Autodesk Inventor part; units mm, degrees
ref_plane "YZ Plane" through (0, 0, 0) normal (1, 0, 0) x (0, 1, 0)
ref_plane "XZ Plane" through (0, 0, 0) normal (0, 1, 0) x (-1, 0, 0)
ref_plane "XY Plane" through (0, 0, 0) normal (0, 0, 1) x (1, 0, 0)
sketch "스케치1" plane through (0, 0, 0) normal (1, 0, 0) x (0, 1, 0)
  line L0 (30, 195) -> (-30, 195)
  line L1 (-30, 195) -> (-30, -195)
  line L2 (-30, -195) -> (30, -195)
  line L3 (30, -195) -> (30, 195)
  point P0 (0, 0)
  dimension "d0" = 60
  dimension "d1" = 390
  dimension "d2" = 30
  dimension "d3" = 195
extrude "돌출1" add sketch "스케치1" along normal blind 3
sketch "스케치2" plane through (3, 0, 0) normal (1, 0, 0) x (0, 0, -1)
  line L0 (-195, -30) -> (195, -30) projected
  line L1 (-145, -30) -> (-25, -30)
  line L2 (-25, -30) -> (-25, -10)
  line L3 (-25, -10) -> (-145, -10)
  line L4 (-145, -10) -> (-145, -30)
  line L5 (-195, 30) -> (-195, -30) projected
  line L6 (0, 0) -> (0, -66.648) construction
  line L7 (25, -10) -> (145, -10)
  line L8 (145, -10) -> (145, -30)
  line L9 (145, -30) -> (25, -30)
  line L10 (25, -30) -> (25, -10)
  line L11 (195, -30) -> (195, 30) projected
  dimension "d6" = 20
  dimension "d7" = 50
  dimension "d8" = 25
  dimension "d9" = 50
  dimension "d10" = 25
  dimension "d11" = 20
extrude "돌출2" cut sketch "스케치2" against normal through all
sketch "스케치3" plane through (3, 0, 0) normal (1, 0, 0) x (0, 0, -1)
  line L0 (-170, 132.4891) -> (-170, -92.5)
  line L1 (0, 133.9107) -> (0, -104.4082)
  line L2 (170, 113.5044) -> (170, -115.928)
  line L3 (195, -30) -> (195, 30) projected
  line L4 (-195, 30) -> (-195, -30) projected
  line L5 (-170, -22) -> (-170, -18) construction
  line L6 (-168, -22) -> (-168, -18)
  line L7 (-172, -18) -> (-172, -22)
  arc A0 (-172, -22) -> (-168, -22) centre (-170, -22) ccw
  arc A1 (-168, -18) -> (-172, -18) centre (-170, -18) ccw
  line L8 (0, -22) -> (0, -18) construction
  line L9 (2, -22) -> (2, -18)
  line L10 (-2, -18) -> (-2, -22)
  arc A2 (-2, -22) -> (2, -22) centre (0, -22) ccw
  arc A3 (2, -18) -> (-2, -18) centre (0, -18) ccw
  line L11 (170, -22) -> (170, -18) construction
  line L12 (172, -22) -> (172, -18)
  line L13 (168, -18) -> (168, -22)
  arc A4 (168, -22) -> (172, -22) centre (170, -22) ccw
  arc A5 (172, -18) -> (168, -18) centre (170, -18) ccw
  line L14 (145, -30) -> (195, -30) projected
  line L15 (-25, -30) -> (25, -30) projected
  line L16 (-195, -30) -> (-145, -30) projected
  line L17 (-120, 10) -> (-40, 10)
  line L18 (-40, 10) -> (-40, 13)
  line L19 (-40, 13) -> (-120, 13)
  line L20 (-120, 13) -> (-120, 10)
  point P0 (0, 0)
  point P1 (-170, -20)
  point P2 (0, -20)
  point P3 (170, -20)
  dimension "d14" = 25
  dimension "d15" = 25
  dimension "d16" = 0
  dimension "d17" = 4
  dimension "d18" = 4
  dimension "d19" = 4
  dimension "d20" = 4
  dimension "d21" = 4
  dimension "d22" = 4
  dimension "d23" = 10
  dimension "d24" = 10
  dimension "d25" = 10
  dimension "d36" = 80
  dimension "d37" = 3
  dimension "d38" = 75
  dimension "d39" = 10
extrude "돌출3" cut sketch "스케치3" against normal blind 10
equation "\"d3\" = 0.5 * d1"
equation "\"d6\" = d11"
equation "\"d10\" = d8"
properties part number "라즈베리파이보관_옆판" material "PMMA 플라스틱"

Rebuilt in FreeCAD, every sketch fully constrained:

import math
import FreeCAD as App
import Part
import Sketcher

V = App.Vector
Q = App.Units.Quantity

doc = App.newDocument("Part")
body = doc.addObject("PartDesign::Body", "Body")

# Sketch on YZ plane
sketch1 = body.newObject("Sketcher::SketchObject", "Sketch")
sketch1.AttachmentSupport = (doc.getObject("YZ_Plane"), [""])
sketch1.MapMode = "FlatFace"
sketch1.addGeometry([
    Part.LineSegment(V(30, -195, 0), V(30, 195, 0)),
    Part.LineSegment(V(30, 195, 0), V(-30, 195, 0)),
    Part.LineSegment(V(-30, 195, 0), V(-30, -195, 0)),
    Part.LineSegment(V(-30, -195, 0), V(30, -195, 0)),
], False)
sketch1.addConstraint([
    Sketcher.Constraint("Coincident", 0, 2, 1, 1),
    Sketcher.Constraint("Coincident", 1, 2, 2, 1),
    Sketcher.Constraint("Coincident", 2, 2, 3, 1),
    Sketcher.Constraint("Coincident", 3, 2, 0, 1),
    Sketcher.Constraint("Vertical", 0),
    Sketcher.Constraint("Horizontal", 1),
    Sketcher.Constraint("Vertical", 2),
    Sketcher.Constraint("Horizontal", 3),
    Sketcher.Constraint("Symmetric", 0, 2, 2, 2, -1, 1),
    Sketcher.Constraint("DistanceX", 1, 2, 1, 1, Q("60 mm")),
    Sketcher.Constraint("DistanceY", 0, 1, 0, 2, Q("390 mm")),
])
pad1 = body.newObject("PartDesign::Pad", "Pad")
pad1.Profile = sketch1
pad1.Length = 3

# Sketch on YZ plane
sketch2 = body.newObject("Sketcher::SketchObject", "Sketch001")
sketch2.AttachmentSupport = (doc.getObject("YZ_Plane"), [""])
sketch2.MapMode = "FlatFace"
sketch2.AttachmentOffset = App.Placement(V(0, 0, 3), App.Rotation())
sketch2.addGeometry([
    Part.LineSegment(V(-10, 145, 0), V(-30, 145, 0)),  # 0
    Part.LineSegment(V(-30, 145, 0), V(-30, 25, 0)),  # 1
    Part.LineSegment(V(-30, 25, 0), V(-10, 25, 0)),  # 2
    Part.LineSegment(V(-10, 25, 0), V(-10, 145, 0)),  # 3
    Part.LineSegment(V(-10, -25, 0), V(-30, -25, 0)),  # 4
    Part.LineSegment(V(-30, -25, 0), V(-30, -145, 0)),  # 5
    Part.LineSegment(V(-30, -145, 0), V(-10, -145, 0)),  # 6
    Part.LineSegment(V(-10, -145, 0), V(-10, -25, 0)),  # 7
], False)
sketch2.addConstraint([
    Sketcher.Constraint("Coincident", 0, 2, 1, 1),
    Sketcher.Constraint("Coincident", 1, 2, 2, 1),
    Sketcher.Constraint("Coincident", 2, 2, 3, 1),
    Sketcher.Constraint("Coincident", 3, 2, 0, 1),
    Sketcher.Constraint("Coincident", 4, 2, 5, 1),
    Sketcher.Constraint("Coincident", 5, 2, 6, 1),
    Sketcher.Constraint("Coincident", 6, 2, 7, 1),
    Sketcher.Constraint("Coincident", 7, 2, 4, 1),
    Sketcher.Constraint("Horizontal", 0),
    Sketcher.Constraint("Vertical", 1),
    Sketcher.Constraint("Horizontal", 2),
    Sketcher.Constraint("Vertical", 3),
    Sketcher.Constraint("Horizontal", 4),
    Sketcher.Constraint("Vertical", 5),
    Sketcher.Constraint("Horizontal", 6),
    Sketcher.Constraint("Vertical", 7),
    Sketcher.Constraint("Symmetric", 1, 2, 4, 2, -1),
    Sketcher.Constraint("Symmetric", 3, 2, 6, 2, -1),
    Sketcher.Constraint("DistanceX", 0, 2, 0, 1, Q("20 mm")),
    Sketcher.Constraint("DistanceY", -1, 1, 1, 2, Q("25 mm")),
    Sketcher.Constraint("DistanceY", 1, 2, 1, 1, Q("120 mm")),
    Sketcher.Constraint("DistanceX", 0, 2, -1, 1, Q("30 mm")),
])
pocket1 = body.newObject("PartDesign::Pocket", "Pocket")
pocket1.Profile = sketch2
pocket1.Type = "ThroughAll"

# Sketch on YZ plane
sketch3 = body.newObject("Sketcher::SketchObject", "Sketch002")
sketch3.AttachmentSupport = (doc.getObject("YZ_Plane"), [""])
sketch3.MapMode = "FlatFace"
sketch3.AttachmentOffset = App.Placement(V(0, 0, 3), App.Rotation())
sketch3.addGeometry([
    Part.ArcOfCircle(Part.Circle(V(-18, 170, 0), V(0, 0, 1), 2), math.radians(-90), math.radians(90)),  # 0
    Part.LineSegment(V(-18, 172, 0), V(-22, 172, 0)),  # 1
    Part.ArcOfCircle(Part.Circle(V(-22, 170, 0), V(0, 0, 1), 2), math.radians(90), math.radians(270)),  # 2
    Part.LineSegment(V(-22, 168, 0), V(-18, 168, 0)),  # 3
    Part.ArcOfCircle(Part.Circle(V(-18, 0, 0), V(0, 0, 1), 2), math.radians(-90), math.radians(90)),  # 4
    Part.LineSegment(V(-18, 2, 0), V(-22, 2, 0)),  # 5
    Part.ArcOfCircle(Part.Circle(V(-22, 0, 0), V(0, 0, 1), 2), math.radians(90), math.radians(270)),  # 6
    Part.LineSegment(V(-22, -2, 0), V(-18, -2, 0)),  # 7
    Part.ArcOfCircle(Part.Circle(V(-18, -170, 0), V(0, 0, 1), 2), math.radians(-90), math.radians(90)),  # 8
    Part.LineSegment(V(-18, -168, 0), V(-22, -168, 0)),  # 9
    Part.ArcOfCircle(Part.Circle(V(-22, -170, 0), V(0, 0, 1), 2), math.radians(90), math.radians(270)),  # 10
    Part.LineSegment(V(-22, -172, 0), V(-18, -172, 0)),  # 11
    Part.LineSegment(V(13, 120, 0), V(10, 120, 0)),  # 12
    Part.LineSegment(V(10, 120, 0), V(10, 40, 0)),  # 13
    Part.LineSegment(V(10, 40, 0), V(13, 40, 0)),  # 14
    Part.LineSegment(V(13, 40, 0), V(13, 120, 0)),  # 15
], False)
sketch3.addConstraint([
    Sketcher.Constraint("Tangent", 0, 2, 1, 1),
    Sketcher.Constraint("Tangent", 1, 2, 2, 1),
    Sketcher.Constraint("Tangent", 2, 2, 3, 1),
    Sketcher.Constraint("Tangent", 3, 2, 0, 1),
    Sketcher.Constraint("Tangent", 4, 2, 5, 1),
    Sketcher.Constraint("Tangent", 5, 2, 6, 1),
    Sketcher.Constraint("Tangent", 6, 2, 7, 1),
    Sketcher.Constraint("Tangent", 7, 2, 4, 1),
    Sketcher.Constraint("Tangent", 8, 2, 9, 1),
    Sketcher.Constraint("Tangent", 9, 2, 10, 1),
    Sketcher.Constraint("Tangent", 10, 2, 11, 1),
    Sketcher.Constraint("Tangent", 11, 2, 8, 1),
    Sketcher.Constraint("Coincident", 12, 2, 13, 1),
    Sketcher.Constraint("Coincident", 13, 2, 14, 1),
    Sketcher.Constraint("Coincident", 14, 2, 15, 1),
    Sketcher.Constraint("Coincident", 15, 2, 12, 1),
    Sketcher.Constraint("Horizontal", 1),
    Sketcher.Constraint("Horizontal", 3),
    Sketcher.Constraint("Horizontal", 5),
    Sketcher.Constraint("Horizontal", 7),
    Sketcher.Constraint("Horizontal", 9),
    Sketcher.Constraint("Horizontal", 11),
    Sketcher.Constraint("Horizontal", 12),
    Sketcher.Constraint("Vertical", 13),
    Sketcher.Constraint("Horizontal", 14),
    Sketcher.Constraint("Vertical", 15),
    Sketcher.Constraint("Equal", 2, 4),
    Sketcher.Constraint("Equal", 6, 8),
    Sketcher.Constraint("Symmetric", 0, 3, 8, 3, -1),
    Sketcher.Constraint("PointOnObject", 4, 3, -1),
    Sketcher.Constraint("Vertical", 0, 3, 4, 3),
    Sketcher.Constraint("Vertical", 2, 3, 6, 3),
    Sketcher.Constraint("Vertical", 6, 3, 10, 3),
    Sketcher.Constraint("Radius", 0, Q("2 mm")),
    Sketcher.Constraint("DistanceX", 1, 2, 1, 1, Q("4 mm")),
    Sketcher.Constraint("DistanceX", 12, 2, 12, 1, Q("3 mm")),
    Sketcher.Constraint("DistanceY", 13, 2, 13, 1, Q("80 mm")),
    Sketcher.Constraint("DistanceX", -1, 1, 12, 2, Q("10 mm")),
    Sketcher.Constraint("DistanceX", 0, 3, -1, 1, Q("18 mm")),
    Sketcher.Constraint("DistanceY", -1, 1, 0, 3, Q("170 mm")),
    Sketcher.Constraint("DistanceY", -1, 1, 12, 2, Q("120 mm")),
])
pocket2 = body.newObject("PartDesign::Pocket", "Pocket001")
pocket2.Profile = sketch3
pocket2.Length = 10

doc.recompute()
